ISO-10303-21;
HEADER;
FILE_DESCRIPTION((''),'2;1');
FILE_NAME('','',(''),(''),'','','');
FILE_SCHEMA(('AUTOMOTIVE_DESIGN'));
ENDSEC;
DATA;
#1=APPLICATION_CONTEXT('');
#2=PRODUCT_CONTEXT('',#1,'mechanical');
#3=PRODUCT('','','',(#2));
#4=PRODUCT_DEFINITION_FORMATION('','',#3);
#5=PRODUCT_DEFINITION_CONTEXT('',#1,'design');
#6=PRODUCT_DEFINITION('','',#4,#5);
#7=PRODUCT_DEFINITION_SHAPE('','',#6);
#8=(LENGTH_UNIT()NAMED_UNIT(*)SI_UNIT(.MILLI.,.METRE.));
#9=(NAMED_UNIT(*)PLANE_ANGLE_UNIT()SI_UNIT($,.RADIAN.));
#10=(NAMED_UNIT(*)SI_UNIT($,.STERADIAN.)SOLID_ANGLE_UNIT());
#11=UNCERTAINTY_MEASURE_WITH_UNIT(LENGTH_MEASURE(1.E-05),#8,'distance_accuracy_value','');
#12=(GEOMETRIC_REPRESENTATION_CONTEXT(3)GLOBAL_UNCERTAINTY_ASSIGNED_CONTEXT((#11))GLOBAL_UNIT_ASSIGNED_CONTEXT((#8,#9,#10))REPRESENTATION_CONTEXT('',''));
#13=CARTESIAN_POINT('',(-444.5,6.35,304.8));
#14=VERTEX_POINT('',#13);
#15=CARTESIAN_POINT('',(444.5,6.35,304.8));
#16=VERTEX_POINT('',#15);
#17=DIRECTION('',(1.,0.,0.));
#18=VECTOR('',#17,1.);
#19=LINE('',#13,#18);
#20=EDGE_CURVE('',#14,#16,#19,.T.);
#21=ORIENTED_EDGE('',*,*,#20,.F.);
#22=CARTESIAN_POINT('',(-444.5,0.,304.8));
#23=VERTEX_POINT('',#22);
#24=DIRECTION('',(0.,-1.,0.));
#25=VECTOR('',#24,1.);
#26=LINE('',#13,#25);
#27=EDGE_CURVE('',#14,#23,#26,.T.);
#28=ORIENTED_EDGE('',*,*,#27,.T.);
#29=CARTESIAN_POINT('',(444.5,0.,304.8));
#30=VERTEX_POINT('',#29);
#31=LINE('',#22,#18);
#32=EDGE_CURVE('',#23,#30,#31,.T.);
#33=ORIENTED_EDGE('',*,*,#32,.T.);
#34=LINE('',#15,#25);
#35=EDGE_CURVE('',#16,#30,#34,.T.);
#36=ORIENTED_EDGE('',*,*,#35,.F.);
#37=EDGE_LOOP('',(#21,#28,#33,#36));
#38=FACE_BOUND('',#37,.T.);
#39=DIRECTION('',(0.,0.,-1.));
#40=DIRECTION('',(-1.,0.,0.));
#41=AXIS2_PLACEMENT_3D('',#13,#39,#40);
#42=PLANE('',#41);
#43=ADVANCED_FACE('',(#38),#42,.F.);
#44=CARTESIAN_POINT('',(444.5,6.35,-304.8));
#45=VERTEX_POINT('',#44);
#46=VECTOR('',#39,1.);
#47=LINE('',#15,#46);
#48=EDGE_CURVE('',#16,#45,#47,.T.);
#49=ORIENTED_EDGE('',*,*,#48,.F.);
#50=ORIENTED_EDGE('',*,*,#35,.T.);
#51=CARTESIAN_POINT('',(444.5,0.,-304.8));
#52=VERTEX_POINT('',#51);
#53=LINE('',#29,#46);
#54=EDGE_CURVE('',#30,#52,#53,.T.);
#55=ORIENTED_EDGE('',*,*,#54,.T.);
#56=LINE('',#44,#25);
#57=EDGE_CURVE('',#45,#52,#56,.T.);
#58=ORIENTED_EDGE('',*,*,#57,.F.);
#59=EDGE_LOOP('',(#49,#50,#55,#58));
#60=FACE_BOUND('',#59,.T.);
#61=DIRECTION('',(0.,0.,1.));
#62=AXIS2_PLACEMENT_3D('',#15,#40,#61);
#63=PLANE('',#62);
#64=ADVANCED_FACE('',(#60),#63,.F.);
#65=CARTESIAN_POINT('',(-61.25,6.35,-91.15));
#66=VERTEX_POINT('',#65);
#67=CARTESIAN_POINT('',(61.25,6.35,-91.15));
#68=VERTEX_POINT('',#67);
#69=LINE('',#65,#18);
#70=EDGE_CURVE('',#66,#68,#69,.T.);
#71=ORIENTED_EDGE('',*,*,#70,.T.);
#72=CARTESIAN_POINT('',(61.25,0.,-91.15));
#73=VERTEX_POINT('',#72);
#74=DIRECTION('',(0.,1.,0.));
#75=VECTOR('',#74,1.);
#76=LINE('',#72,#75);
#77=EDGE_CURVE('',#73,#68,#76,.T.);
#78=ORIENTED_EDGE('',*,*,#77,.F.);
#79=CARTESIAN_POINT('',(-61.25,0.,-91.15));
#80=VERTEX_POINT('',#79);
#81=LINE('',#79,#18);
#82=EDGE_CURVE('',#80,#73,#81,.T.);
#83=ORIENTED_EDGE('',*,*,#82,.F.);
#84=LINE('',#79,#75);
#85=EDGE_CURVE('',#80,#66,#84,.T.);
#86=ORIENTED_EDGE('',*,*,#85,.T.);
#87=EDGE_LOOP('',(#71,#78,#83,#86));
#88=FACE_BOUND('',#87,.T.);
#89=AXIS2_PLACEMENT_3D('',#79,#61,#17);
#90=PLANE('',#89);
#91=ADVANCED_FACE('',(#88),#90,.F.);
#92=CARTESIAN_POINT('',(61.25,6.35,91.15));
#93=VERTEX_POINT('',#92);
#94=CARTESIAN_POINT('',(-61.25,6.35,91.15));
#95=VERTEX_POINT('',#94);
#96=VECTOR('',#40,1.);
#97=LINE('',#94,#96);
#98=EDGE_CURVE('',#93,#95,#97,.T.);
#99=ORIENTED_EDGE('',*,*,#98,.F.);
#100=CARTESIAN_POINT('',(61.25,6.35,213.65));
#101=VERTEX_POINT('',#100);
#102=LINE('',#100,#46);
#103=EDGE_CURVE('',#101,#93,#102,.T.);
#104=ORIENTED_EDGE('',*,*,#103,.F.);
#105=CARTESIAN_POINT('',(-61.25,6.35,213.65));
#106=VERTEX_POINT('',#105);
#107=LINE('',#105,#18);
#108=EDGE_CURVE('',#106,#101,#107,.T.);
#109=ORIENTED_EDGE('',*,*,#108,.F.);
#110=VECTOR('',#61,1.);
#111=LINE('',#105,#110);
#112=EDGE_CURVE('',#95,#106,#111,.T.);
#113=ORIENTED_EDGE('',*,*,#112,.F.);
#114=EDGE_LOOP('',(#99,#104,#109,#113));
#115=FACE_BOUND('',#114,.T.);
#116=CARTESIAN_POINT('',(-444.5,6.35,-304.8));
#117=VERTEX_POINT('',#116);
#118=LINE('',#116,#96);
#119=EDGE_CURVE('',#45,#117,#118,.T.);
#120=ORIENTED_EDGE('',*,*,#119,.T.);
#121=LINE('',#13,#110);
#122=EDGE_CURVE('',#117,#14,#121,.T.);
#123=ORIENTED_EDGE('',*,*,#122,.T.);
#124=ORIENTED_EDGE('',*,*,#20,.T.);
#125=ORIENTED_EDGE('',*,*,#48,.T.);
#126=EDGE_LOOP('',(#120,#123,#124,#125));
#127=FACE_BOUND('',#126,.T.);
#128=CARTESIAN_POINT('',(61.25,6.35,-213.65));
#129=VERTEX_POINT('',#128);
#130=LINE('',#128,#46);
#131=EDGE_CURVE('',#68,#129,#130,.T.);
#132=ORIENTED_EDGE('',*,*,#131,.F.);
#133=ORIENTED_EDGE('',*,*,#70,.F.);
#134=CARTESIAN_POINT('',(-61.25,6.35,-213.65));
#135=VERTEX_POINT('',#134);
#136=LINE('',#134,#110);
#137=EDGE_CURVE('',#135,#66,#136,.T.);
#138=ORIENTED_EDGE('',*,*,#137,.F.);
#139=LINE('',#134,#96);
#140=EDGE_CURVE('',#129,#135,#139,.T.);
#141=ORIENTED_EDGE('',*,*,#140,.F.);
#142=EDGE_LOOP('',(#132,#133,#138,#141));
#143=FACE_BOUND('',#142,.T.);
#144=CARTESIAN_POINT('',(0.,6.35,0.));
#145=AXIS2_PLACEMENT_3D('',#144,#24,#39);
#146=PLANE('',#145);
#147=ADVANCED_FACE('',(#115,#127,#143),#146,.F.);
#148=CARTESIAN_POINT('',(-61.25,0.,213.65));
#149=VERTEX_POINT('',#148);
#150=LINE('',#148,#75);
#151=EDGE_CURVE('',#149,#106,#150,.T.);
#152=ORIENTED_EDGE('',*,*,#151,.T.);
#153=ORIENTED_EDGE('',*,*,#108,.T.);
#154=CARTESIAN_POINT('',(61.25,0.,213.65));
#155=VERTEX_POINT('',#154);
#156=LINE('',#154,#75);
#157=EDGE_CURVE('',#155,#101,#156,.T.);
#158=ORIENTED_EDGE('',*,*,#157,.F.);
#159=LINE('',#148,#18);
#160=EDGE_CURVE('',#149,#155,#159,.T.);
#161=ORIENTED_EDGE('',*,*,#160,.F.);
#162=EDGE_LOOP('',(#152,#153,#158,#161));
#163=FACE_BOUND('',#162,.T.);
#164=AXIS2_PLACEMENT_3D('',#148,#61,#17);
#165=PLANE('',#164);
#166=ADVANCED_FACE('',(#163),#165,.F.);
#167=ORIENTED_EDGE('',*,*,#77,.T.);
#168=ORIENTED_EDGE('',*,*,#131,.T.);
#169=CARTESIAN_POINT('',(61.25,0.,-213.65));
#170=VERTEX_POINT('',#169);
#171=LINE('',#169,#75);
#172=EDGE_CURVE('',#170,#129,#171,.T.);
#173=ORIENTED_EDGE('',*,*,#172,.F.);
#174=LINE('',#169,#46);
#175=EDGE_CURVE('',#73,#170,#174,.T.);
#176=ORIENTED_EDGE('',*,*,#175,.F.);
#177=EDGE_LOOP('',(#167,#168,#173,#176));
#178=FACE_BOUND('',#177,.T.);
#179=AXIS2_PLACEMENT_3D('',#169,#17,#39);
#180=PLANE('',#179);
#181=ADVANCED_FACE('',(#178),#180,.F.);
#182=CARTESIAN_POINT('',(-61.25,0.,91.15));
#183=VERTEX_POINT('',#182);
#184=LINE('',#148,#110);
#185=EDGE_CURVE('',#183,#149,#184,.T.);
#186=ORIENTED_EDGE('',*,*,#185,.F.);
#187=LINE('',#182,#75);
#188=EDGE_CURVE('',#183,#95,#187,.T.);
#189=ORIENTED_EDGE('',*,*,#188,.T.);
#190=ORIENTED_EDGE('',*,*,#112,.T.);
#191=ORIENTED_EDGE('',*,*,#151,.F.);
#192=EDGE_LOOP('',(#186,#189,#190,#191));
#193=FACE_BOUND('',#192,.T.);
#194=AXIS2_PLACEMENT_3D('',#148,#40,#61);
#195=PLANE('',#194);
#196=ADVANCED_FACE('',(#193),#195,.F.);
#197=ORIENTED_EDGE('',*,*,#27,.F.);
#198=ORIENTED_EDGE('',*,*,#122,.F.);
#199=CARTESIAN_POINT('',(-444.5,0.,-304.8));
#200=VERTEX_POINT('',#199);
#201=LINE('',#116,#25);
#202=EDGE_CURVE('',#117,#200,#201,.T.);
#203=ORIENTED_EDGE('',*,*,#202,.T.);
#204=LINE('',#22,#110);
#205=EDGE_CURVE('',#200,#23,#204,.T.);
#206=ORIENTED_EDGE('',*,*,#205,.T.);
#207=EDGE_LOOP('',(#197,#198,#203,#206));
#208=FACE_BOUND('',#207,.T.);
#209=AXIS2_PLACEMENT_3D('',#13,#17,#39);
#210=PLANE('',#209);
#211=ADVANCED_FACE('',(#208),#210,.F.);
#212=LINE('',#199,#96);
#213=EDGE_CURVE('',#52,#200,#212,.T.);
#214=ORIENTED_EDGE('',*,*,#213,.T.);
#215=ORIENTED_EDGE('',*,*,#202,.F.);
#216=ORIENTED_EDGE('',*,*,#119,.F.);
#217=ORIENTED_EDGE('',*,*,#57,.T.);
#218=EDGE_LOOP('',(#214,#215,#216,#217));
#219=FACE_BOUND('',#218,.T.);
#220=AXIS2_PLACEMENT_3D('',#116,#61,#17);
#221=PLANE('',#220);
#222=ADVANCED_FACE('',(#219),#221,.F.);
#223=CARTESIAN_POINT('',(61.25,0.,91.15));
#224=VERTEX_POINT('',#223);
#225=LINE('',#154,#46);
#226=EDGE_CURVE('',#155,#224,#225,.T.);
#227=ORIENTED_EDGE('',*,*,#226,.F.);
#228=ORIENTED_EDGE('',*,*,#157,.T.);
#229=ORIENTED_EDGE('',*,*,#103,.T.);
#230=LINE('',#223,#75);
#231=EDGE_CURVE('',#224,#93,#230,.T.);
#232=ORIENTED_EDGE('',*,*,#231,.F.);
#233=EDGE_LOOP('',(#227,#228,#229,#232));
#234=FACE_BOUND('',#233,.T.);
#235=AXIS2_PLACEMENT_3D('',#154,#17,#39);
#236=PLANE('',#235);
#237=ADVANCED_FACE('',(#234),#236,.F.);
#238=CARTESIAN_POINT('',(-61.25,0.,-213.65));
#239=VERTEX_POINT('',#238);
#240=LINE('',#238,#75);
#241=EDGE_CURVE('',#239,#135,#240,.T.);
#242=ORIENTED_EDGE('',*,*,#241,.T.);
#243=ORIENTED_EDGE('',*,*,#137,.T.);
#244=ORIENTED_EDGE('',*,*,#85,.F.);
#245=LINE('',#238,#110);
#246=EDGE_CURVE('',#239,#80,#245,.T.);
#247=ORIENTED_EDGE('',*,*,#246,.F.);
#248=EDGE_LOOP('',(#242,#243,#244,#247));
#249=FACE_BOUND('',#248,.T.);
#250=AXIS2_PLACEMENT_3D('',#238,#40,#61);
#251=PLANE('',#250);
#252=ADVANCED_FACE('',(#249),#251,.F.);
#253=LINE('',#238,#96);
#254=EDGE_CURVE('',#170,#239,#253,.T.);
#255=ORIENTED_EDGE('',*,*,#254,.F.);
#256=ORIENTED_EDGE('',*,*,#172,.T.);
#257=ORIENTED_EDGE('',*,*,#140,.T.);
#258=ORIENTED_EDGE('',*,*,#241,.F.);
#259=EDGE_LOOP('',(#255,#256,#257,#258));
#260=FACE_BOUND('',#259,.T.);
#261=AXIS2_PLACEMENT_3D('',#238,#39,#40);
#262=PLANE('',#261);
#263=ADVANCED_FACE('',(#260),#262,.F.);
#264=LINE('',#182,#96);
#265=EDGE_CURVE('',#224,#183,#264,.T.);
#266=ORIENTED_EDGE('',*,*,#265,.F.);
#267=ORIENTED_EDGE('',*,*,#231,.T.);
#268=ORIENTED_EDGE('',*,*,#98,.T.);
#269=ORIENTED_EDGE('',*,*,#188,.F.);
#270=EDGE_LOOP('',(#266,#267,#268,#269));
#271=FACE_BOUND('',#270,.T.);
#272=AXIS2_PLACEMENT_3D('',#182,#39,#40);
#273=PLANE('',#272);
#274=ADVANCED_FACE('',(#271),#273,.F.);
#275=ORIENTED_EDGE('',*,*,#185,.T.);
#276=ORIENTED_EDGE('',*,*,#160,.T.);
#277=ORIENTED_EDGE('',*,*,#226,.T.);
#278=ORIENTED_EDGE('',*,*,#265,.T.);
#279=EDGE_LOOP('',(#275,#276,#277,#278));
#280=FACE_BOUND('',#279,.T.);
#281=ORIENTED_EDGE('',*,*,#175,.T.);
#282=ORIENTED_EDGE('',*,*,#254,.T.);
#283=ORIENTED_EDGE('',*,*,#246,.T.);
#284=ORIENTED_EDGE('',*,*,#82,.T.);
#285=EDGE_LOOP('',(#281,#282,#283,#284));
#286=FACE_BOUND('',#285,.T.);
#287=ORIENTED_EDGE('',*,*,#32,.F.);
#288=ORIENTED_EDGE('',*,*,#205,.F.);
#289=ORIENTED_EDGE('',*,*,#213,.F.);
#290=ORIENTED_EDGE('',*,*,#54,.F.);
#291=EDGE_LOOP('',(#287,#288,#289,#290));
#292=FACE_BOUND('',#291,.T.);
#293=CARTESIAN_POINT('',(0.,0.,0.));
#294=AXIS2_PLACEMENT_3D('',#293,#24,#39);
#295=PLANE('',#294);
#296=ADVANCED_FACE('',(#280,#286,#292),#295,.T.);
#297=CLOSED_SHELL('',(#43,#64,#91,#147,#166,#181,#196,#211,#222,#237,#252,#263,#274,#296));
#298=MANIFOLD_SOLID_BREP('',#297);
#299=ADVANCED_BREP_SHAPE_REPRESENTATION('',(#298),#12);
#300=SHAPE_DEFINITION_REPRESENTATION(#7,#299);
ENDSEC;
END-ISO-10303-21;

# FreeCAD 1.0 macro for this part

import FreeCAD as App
import Part
import Sketcher

V = App.Vector
Q = App.Units.Quantity

doc = App.newDocument("Part")
params = doc.addObject("Spreadsheet::Sheet", "Params")
for row, (alias, value) in enumerate([
    ("sketch1_width", "35 in"),
    ("sketch1_height", "24 in"),
    ("pad1_length", "0.25 in"),
], start=1):
    params.set(f"A{row}", alias)
    params.set(f"B{row}", "=" + value)
    params.setAlias(f"B{row}", alias)

body = doc.addObject("PartDesign::Body", "Body")

# Sketch on XZ plane
sketch1 = body.newObject("Sketcher::SketchObject", "Sketch")
sketch1.AttachmentSupport = (doc.getObject("XZ_Plane"), [""])
sketch1.MapMode = "FlatFace"
sketch1.addGeometry([
    Part.LineSegment(V(-444, -305, 0), V(-444, 305, 0)),
    Part.LineSegment(V(-444, 305, 0), V(444, 305, 0)),
    Part.LineSegment(V(444, 305, 0), V(444, -305, 0)),
    Part.LineSegment(V(444, -305, 0), V(-444, -305, 0)),
], False)
sketch1.addConstraint([
    Sketcher.Constraint("Coincident", 0, 2, 1, 1),
    Sketcher.Constraint("Coincident", 1, 2, 2, 1),
    Sketcher.Constraint("Coincident", 2, 2, 3, 1),
    Sketcher.Constraint("Coincident", 3, 2, 0, 1),
    Sketcher.Constraint("Vertical", 0),
    Sketcher.Constraint("Horizontal", 1),
    Sketcher.Constraint("Vertical", 2),
    Sketcher.Constraint("Horizontal", 3),
    Sketcher.Constraint("Symmetric", 0, 2, 2, 2, -1, 1),
    Sketcher.Constraint("DistanceX", 1, 1, 1, 2, Q("35 in")),
    Sketcher.Constraint("DistanceY", 0, 1, 0, 2, Q("24 in")),
])
sketch1.setExpression("Constraints[9]", "Params.sketch1_width")
sketch1.setExpression("Constraints[10]", "Params.sketch1_height")
pad1 = body.newObject("PartDesign::Pad", "Pad")
pad1.Profile = sketch1
pad1.setExpression("Length", "Params.pad1_length")
pad1.Reversed = True

# Sketch on XZ plane
sketch2 = body.newObject("Sketcher::SketchObject", "Sketch001")
sketch2.AttachmentSupport = (doc.getObject("XZ_Plane"), [""])
sketch2.MapMode = "FlatFace"
sketch2.AttachmentOffset = App.Placement(V(0, 0, -0.25 * 25.4), App.Rotation())
sketch2.addGeometry([
    Part.LineSegment(V(-61, -214, 0), V(-61, -91, 0)),  # 0
    Part.LineSegment(V(-61, -91, 0), V(61, -91, 0)),  # 1
    Part.LineSegment(V(61, -91, 0), V(61, -214, 0)),  # 2
    Part.LineSegment(V(61, -214, 0), V(-61, -214, 0)),  # 3
    Part.LineSegment(V(-61, 91, 0), V(-61, 214, 0)),  # 4
    Part.LineSegment(V(-61, 214, 0), V(61, 214, 0)),  # 5
    Part.LineSegment(V(61, 214, 0), V(61, 91, 0)),  # 6
    Part.LineSegment(V(61, 91, 0), V(-61, 91, 0)),  # 7
], False)
sketch2.addConstraint([
    Sketcher.Constraint("Coincident", 0, 2, 1, 1),
    Sketcher.Constraint("Coincident", 1, 2, 2, 1),
    Sketcher.Constraint("Coincident", 2, 2, 3, 1),
    Sketcher.Constraint("Coincident", 3, 2, 0, 1),
    Sketcher.Constraint("Coincident", 4, 2, 5, 1),
    Sketcher.Constraint("Coincident", 5, 2, 6, 1),
    Sketcher.Constraint("Coincident", 6, 2, 7, 1),
    Sketcher.Constraint("Coincident", 7, 2, 4, 1),
    Sketcher.Constraint("Vertical", 0),
    Sketcher.Constraint("Horizontal", 1),
    Sketcher.Constraint("Vertical", 2),
    Sketcher.Constraint("Horizontal", 3),
    Sketcher.Constraint("Vertical", 4),
    Sketcher.Constraint("Horizontal", 5),
    Sketcher.Constraint("Vertical", 6),
    Sketcher.Constraint("Horizontal", 7),
    Sketcher.Constraint("Symmetric", 2, 2, 4, 2, -1, 1),
    Sketcher.Constraint("Symmetric", 0, 2, 6, 2, -1, 1),
    Sketcher.Constraint("Vertical", 3, 2, 4, 2),
    Sketcher.Constraint("Equal", 7, 0),
    Sketcher.Constraint("DistanceY", 0, 2, 4, 2, Q("12 in")),
    Sketcher.Constraint("DistanceX", 1, 1, 1, 2, Q("122.5 mm")),
])
pocket1 = body.newObject("PartDesign::Pocket", "Pocket")
pocket1.Profile = sketch2
pocket1.Type = "ThroughAll"
pocket1.Reversed = True

doc.recompute()
